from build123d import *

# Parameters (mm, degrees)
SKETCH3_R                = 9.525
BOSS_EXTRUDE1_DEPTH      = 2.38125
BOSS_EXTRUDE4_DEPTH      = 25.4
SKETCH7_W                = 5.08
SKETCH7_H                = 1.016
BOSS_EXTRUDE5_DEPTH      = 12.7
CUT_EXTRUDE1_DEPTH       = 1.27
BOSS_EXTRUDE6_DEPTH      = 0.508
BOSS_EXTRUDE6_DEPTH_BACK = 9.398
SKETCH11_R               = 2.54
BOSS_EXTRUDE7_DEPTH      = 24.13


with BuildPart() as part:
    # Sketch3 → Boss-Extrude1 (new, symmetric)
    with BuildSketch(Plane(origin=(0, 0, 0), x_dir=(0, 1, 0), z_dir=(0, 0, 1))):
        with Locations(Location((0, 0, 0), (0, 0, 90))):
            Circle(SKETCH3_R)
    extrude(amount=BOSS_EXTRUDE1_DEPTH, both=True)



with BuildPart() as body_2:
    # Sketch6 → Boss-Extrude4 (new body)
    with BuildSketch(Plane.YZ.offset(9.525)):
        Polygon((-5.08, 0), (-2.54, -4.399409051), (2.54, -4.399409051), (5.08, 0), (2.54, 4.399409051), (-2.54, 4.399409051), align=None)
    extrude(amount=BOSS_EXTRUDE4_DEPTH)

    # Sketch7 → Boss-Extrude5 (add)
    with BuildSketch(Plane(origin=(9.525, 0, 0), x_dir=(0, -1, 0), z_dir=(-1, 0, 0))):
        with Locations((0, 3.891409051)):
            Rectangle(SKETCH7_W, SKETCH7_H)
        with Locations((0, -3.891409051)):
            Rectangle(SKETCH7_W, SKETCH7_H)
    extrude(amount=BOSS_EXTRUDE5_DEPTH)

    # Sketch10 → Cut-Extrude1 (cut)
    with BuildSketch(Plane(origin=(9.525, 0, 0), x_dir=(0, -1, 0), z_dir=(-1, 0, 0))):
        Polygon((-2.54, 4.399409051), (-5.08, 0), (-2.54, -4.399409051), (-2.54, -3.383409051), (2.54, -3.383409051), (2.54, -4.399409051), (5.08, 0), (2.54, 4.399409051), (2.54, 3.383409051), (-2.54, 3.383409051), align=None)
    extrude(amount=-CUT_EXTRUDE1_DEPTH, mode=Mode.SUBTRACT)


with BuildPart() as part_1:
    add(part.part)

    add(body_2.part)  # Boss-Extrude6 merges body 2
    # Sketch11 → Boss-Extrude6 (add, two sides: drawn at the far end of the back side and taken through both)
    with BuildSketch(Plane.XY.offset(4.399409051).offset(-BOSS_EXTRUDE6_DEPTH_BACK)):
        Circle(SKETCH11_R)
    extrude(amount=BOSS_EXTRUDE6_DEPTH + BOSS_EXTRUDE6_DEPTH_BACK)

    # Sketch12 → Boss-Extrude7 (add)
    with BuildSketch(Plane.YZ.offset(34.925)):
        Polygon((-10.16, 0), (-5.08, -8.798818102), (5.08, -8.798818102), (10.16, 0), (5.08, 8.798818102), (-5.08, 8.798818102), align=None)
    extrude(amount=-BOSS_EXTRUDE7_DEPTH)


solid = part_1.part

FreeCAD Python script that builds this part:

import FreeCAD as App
import Part
import Sketcher
Q = App.Units.Quantity

doc = App.newDocument("Part")
body = doc.addObject("PartDesign::Body", "Body")

sketch1 = body.newObject("Sketcher::SketchObject", "Sketch")
sketch1.AttachmentSupport = (doc.getObject("XY_Plane"), [""])
sketch1.MapMode = "FlatFace"
sketch1.addGeometry(Part.Circle(App.Vector(0, 0, 0), App.Vector(0, 0, 1), 10), False)
sketch1.addConstraint([
    Sketcher.Constraint("Coincident", 0, 3, -1, 1),
    Sketcher.Constraint("Diameter", 0, Q("0.75 in")),
])
pad1 = body.newObject("PartDesign::Pad", "Pad")
pad1.Profile = sketch1
pad1.Length = Q("0.1875 in")
pad1.Midplane = True
body2 = doc.addObject("PartDesign::Body", "Body001")

sketch2 = body2.newObject("Sketcher::SketchObject", "Sketch001")
sketch2.AttachmentSupport = (doc.getObject("YZ_Plane001"), [""])
sketch2.MapMode = "FlatFace"
sketch2.AttachmentOffset = App.Placement(App.Vector(0, 0, 0.375 * 25.4), App.Rotation())
sketch2.addGeometry([
    Part.LineSegment(App.Vector(-5, 0, 0), App.Vector(-3, -4, 0)),
    Part.LineSegment(App.Vector(-3, -4, 0), App.Vector(3, -4, 0)),
    Part.LineSegment(App.Vector(3, -4, 0), App.Vector(5, 0, 0)),
    Part.LineSegment(App.Vector(5, 0, 0), App.Vector(3, 4, 0)),
    Part.LineSegment(App.Vector(3, 4, 0), App.Vector(-3, 4, 0)),
    Part.LineSegment(App.Vector(-3, 4, 0), App.Vector(-5, 0, 0)),
], False)
sketch2.addConstraint([
    Sketcher.Constraint("Coincident", 0, 2, 1, 1),
    Sketcher.Constraint("Coincident", 1, 2, 2, 1),
    Sketcher.Constraint("Coincident", 2, 2, 3, 1),
    Sketcher.Constraint("Coincident", 3, 2, 4, 1),
    Sketcher.Constraint("Coincident", 4, 2, 5, 1),
    Sketcher.Constraint("Coincident", 5, 2, 0, 1),
    Sketcher.Constraint("Horizontal", 1),
    Sketcher.Constraint("Horizontal", 4),
    Sketcher.Constraint("Symmetric", 0, 2, 3, 2, -1, 1),
    Sketcher.Constraint("Symmetric", 2, 2, 5, 2, -1, 1),
    Sketcher.Constraint("PointOnObject", 2, 2, -1),
    Sketcher.Constraint("Parallel", 2, 5),
    Sketcher.Constraint("Vertical", 1, 2, 3, 2),
    Sketcher.Constraint("DistanceX", 1, 1, 1, 2, Q("0.2 in")),
    Sketcher.Constraint("Angle", 0, Q("-60 deg")),
    Sketcher.Constraint("Distance", 0, Q("0.2 in")),
])
pad2 = body2.newObject("PartDesign::Pad", "Pad001")
pad2.Profile = sketch2
pad2.Length = Q("1 in")

sketch3 = body2.newObject("Sketcher::SketchObject", "Sketch002")
sketch3.AttachmentSupport = (doc.getObject("YZ_Plane001"), [""])
sketch3.MapMode = "FlatFace"
sketch3.AttachmentOffset = App.Placement(App.Vector(0, 0, 0.375 * 25.4), App.Rotation())
sketch3.addGeometry([
    Part.LineSegment(App.Vector(2.5, 4.4, 0), App.Vector(2.5, 3.4, 0)),
    Part.LineSegment(App.Vector(2.5, 3.4, 0), App.Vector(-2.5, 3.4, 0)),
    Part.LineSegment(App.Vector(-2.5, 3.4, 0), App.Vector(-2.5, 4.4, 0)),
    Part.LineSegment(App.Vector(-2.5, 4.4, 0), App.Vector(2.5, 4.4, 0)),
    Part.LineSegment(App.Vector(2.5, -3.4, 0), App.Vector(2.5, -4.4, 0)),
    Part.LineSegment(App.Vector(2.5, -4.4, 0), App.Vector(-2.5, -4.4, 0)),
    Part.LineSegment(App.Vector(-2.5, -4.4, 0), App.Vector(-2.5, -3.4, 0)),
    Part.LineSegment(App.Vector(-2.5, -3.4, 0), App.Vector(2.5, -3.4, 0)),
], False)
sketch3.addConstraint([
    Sketcher.Constraint("Coincident", 0, 2, 1, 1),
    Sketcher.Constraint("Coincident", 1, 2, 2, 1),
    Sketcher.Constraint("Coincident", 2, 2, 3, 1),
    Sketcher.Constraint("Coincident", 3, 2, 0, 1),
    Sketcher.Constraint("Coincident", 4, 2, 5, 1),
    Sketcher.Constraint("Coincident", 5, 2, 6, 1),
    Sketcher.Constraint("Coincident", 6, 2, 7, 1),
    Sketcher.Constraint("Coincident", 7, 2, 4, 1),
    Sketcher.Constraint("Vertical", 0),
    Sketcher.Constraint("Horizontal", 1),
    Sketcher.Constraint("Vertical", 2),
    Sketcher.Constraint("Horizontal", 3),
    Sketcher.Constraint("Vertical", 4),
    Sketcher.Constraint("Horizontal", 5),
    Sketcher.Constraint("Vertical", 6),
    Sketcher.Constraint("Horizontal", 7),
    Sketcher.Constraint("Symmetric", 2, 2, 4, 2, -1, 1),
    Sketcher.Constraint("Symmetric", 0, 2, 6, 2, -1, 1),
    Sketcher.Constraint("Vertical", 3, 2, 4, 2),
    Sketcher.Constraint("DistanceX", 1, 2, 1, 1, Q("0.2 in")),
    Sketcher.Constraint("DistanceY", 0, 2, 0, 1, Q("0.04 in")),
    Sketcher.Constraint("DistanceY", -1, 1, 0, 2, 3.383409),
])
pad3 = body2.newObject("PartDesign::Pad", "Pad002")
pad3.Profile = sketch3
pad3.Length = Q("0.5 in")
pad3.Reversed = True

sketch4 = body2.newObject("Sketcher::SketchObject", "Sketch003")
sketch4.AttachmentSupport = (doc.getObject("YZ_Plane001"), [""])
sketch4.MapMode = "FlatFace"
sketch4.AttachmentOffset = App.Placement(App.Vector(0, 0, 0.375 * 25.4), App.Rotation())
sketch4.addGeometry([
    Part.LineSegment(App.Vector(2.5, 4.4, 0), App.Vector(5.1, 0, 0)),
    Part.LineSegment(App.Vector(5.1, 0, 0), App.Vector(2.5, -4.4, 0)),
    Part.LineSegment(App.Vector(2.5, -4.4, 0), App.Vector(2.5, -3.4, 0)),
    Part.LineSegment(App.Vector(2.5, -3.4, 0), App.Vector(-2.5, -3.4, 0)),
    Part.LineSegment(App.Vector(-2.5, -3.4, 0), App.Vector(-2.5, -4.4, 0)),
    Part.LineSegment(App.Vector(-2.5, -4.4, 0), App.Vector(-5.1, 0, 0)),
    Part.LineSegment(App.Vector(-5.1, 0, 0), App.Vector(-2.5, 4.4, 0)),
    Part.LineSegment(App.Vector(-2.5, 4.4, 0), App.Vector(-2.5, 3.4, 0)),
    Part.LineSegment(App.Vector(-2.5, 3.4, 0), App.Vector(2.5, 3.4, 0)),
    Part.LineSegment(App.Vector(2.5, 3.4, 0), App.Vector(2.5, 4.4, 0)),
], False)
sketch4.addConstraint([
    Sketcher.Constraint("Coincident", 0, 2, 1, 1),
    Sketcher.Constraint("Coincident", 1, 2, 2, 1),
    Sketcher.Constraint("Coincident", 2, 2, 3, 1),
    Sketcher.Constraint("Coincident", 3, 2, 4, 1),
    Sketcher.Constraint("Coincident", 4, 2, 5, 1),
    Sketcher.Constraint("Coincident", 5, 2, 6, 1),
    Sketcher.Constraint("Coincident", 6, 2, 7, 1),
    Sketcher.Constraint("Coincident", 7, 2, 8, 1),
    Sketcher.Constraint("Coincident", 8, 2, 9, 1),
    Sketcher.Constraint("Coincident", 9, 2, 0, 1),
    Sketcher.Constraint("Vertical", 2),
    Sketcher.Constraint("Horizontal", 3),
    Sketcher.Constraint("Vertical", 4),
    Sketcher.Constraint("Vertical", 7),
    Sketcher.Constraint("Horizontal", 8),
    Sketcher.Constraint("Vertical", 9),
    Sketcher.Constraint("Symmetric", 0, 2, 5, 2, -1, 1),
    Sketcher.Constraint("Symmetric", 1, 2, 6, 2, -1, 1),
    Sketcher.Constraint("Symmetric", 3, 2, 8, 2, -1, 1),
    Sketcher.Constraint("Symmetric", 1, 2, 4, 2, -2),
    Sketcher.Constraint("PointOnObject", 0, 2, -1),
    Sketcher.Constraint("Parallel", 0, 5),
    Sketcher.Constraint("DistanceX", 3, 2, 3, 1, Q("0.2 in")),
    Sketcher.Constraint("Angle", 0, Q("-60 deg")),
    Sketcher.Constraint("Distance", 0, Q("0.2 in")),
    Sketcher.Constraint("DistanceY", 2, 1, 2, 2, Q("0.04 in")),
])
pocket1 = body2.newObject("PartDesign::Pocket", "Pocket")
pocket1.Profile = sketch4
pocket1.Length = Q("0.05 in")
pocket1.Reversed = True
body.AllowCompound = True
doc.recompute()

boolean = body.newObject("PartDesign::Boolean", "Boolean")
boolean.Type = "Fuse"
boolean.addObjects([body2])

sketch5 = body.newObject("Sketcher::SketchObject", "Sketch004")
sketch5.AttachmentSupport = (doc.getObject("XY_Plane"), [""])
sketch5.MapMode = "FlatFace"
sketch5.AttachmentOffset = App.Placement(App.Vector(0, 0, 4.399409), App.Rotation())
sketch5.addGeometry(Part.Circle(App.Vector(0, 0, 0), App.Vector(0, 0, 1), 2.5), False)
sketch5.addConstraint([
    Sketcher.Constraint("Coincident", 0, 3, -1, 1),
    Sketcher.Constraint("Diameter", 0, Q("0.2 in")),
])
pad4 = body.newObject("PartDesign::Pad", "Pad003")
pad4.Profile = sketch5
pad4.Type = "TwoLengths"
pad4.Length = Q("0.02 in")
pad4.Length2 = Q("0.37 in")

sketch6 = body.newObject("Sketcher::SketchObject", "Sketch005")
sketch6.AttachmentSupport = (doc.getObject("YZ_Plane"), [""])
sketch6.MapMode = "FlatFace"
sketch6.AttachmentOffset = App.Placement(App.Vector(0, 0, 1.375 * 25.4), App.Rotation())
sketch6.addGeometry([
    Part.LineSegment(App.Vector(-10, 0, 0), App.Vector(-5, -9, 0)),
    Part.LineSegment(App.Vector(-5, -9, 0), App.Vector(5, -9, 0)),
    Part.LineSegment(App.Vector(5, -9, 0), App.Vector(10, 0, 0)),
    Part.LineSegment(App.Vector(10, 0, 0), App.Vector(5, 9, 0)),
    Part.LineSegment(App.Vector(5, 9, 0), App.Vector(-5, 9, 0)),
    Part.LineSegment(App.Vector(-5, 9, 0), App.Vector(-10, 0, 0)),
], False)
sketch6.addConstraint([
    Sketcher.Constraint("Coincident", 0, 2, 1, 1),
    Sketcher.Constraint("Coincident", 1, 2, 2, 1),
    Sketcher.Constraint("Coincident", 2, 2, 3, 1),
    Sketcher.Constraint("Coincident", 3, 2, 4, 1),
    Sketcher.Constraint("Coincident", 4, 2, 5, 1),
    Sketcher.Constraint("Coincident", 5, 2, 0, 1),
    Sketcher.Constraint("Horizontal", 1),
    Sketcher.Constraint("Horizontal", 4),
    Sketcher.Constraint("Symmetric", 0, 2, 3, 2, -1, 1),
    Sketcher.Constraint("Symmetric", 2, 2, 5, 2, -1, 1),
    Sketcher.Constraint("PointOnObject", 2, 2, -1),
    Sketcher.Constraint("Parallel", 2, 5),
    Sketcher.Constraint("Vertical", 1, 2, 3, 2),
    Sketcher.Constraint("DistanceX", 1, 1, 1, 2, Q("0.4 in")),
    Sketcher.Constraint("Angle", 0, Q("-60 deg")),
    Sketcher.Constraint("Distance", 0, Q("0.4 in")),
])
pad5 = body.newObject("PartDesign::Pad", "Pad004")
pad5.Profile = sketch6
pad5.Length = Q("0.95 in")
pad5.Reversed = True

doc.recompute()
